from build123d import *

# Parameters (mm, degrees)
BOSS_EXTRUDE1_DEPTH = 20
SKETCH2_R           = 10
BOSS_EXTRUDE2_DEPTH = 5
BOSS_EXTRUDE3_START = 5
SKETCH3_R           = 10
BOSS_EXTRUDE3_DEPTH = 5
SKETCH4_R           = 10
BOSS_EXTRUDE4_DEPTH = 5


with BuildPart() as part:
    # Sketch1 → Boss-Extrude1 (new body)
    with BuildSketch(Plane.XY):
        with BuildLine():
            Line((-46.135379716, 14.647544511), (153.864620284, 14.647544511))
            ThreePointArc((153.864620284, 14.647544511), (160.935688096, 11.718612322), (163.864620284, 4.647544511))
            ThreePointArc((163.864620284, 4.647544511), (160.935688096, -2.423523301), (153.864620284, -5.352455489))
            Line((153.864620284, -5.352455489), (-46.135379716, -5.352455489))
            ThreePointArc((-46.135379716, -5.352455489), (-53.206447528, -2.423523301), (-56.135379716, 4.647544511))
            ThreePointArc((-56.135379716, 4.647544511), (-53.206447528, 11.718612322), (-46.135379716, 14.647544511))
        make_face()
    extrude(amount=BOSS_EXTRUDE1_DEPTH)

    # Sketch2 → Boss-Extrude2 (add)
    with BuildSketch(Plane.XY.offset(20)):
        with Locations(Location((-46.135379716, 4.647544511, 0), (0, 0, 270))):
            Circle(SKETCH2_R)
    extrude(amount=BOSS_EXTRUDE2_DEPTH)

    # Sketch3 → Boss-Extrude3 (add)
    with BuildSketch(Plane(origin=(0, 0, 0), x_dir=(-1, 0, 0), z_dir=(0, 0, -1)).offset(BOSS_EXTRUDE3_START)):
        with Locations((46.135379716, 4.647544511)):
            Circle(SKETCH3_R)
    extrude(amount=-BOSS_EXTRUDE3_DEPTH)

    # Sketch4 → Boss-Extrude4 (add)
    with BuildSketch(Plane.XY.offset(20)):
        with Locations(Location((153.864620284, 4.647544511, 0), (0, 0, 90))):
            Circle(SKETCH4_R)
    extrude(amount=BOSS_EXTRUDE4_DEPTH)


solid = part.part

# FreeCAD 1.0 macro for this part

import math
import FreeCAD as App
import Part
import Sketcher

doc = App.newDocument("Part")
params = doc.addObject("Spreadsheet::Sheet", "Params")
for row, (alias, value) in enumerate([
    ("sketch1_radius", "10 mm"),
    ("sketch1_width", "200 mm"),
    ("pad1_length", "20 mm"),
    ("sketch2_diameter", "20 mm"),
    ("pad2_length", "5 mm"),
    ("sketch3_diameter", "20 mm"),
    ("pad3_length", "5 mm"),
    ("sketch4_diameter", "20 mm"),
    ("pad4_length", "5 mm"),
], start=1):
    params.set(f"A{row}", alias)
    params.set(f"B{row}", "=" + value)
    params.setAlias(f"B{row}", alias)

body = doc.addObject("PartDesign::Body", "Body")

# Sketch on XY plane
sketch1 = doc.addObject("Sketcher::SketchObject", "Sketch")
body.addObject(sketch1)
sketch1.AttachmentSupport = (doc.XY_Plane, [""])
sketch1.MapMode = "FlatFace"
sketch1.addGeometry([
    Part.LineSegment(App.Vector(154, 15, 0), App.Vector(-46, 15, 0)),  # 0
    Part.ArcOfCircle(Part.Circle(App.Vector(-46, 5, 0), App.Vector(0, 0, 1), 10), math.radians(90), math.radians(180)),  # 1
    Part.ArcOfCircle(Part.Circle(App.Vector(-46, 5, 0), App.Vector(0, 0, 1), 10), math.radians(180), math.radians(270)),  # 2
    Part.LineSegment(App.Vector(-46, -5, 0), App.Vector(154, -5, 0)),  # 3
    Part.ArcOfCircle(Part.Circle(App.Vector(154, 5, 0), App.Vector(0, 0, 1), 10), math.radians(-90), math.radians(0)),  # 4
    Part.ArcOfCircle(Part.Circle(App.Vector(154, 5, 0), App.Vector(0, 0, 1), 10), math.radians(0), math.radians(90)),  # 5
], False)
sketch1.addConstraint([
    Sketcher.Constraint("Tangent", 0, 2, 1, 1),
    Sketcher.Constraint("Tangent", 1, 2, 2, 1),
    Sketcher.Constraint("Tangent", 2, 2, 3, 1),
    Sketcher.Constraint("Tangent", 3, 2, 4, 1),
    Sketcher.Constraint("Tangent", 4, 2, 5, 1),
    Sketcher.Constraint("Tangent", 5, 2, 0, 1),
    Sketcher.Constraint("Horizontal", 0),
    Sketcher.Constraint("Horizontal", 3),
    Sketcher.Constraint("Equal", 1, 2),
    Sketcher.Constraint("Equal", 2, 4),
    Sketcher.Constraint("Horizontal", 5, 3, 1, 2),
    Sketcher.Constraint("Horizontal", 1, 2, 4, 2),
    Sketcher.Constraint("Radius", 1, 10.0),
    Sketcher.Constraint("DistanceX", 0, 2, 0, 1, 200.0),
    Sketcher.Constraint("DistanceX", 1, 3, -1, 1, 46.13538),
    Sketcher.Constraint("DistanceY", -1, 1, 1, 3, 4.647545),
])
sketch1.setExpression("Constraints[12]", "Params.sketch1_radius")
sketch1.setExpression("Constraints[13]", "Params.sketch1_width")
pad1 = doc.addObject("PartDesign::Pad", "Pad")
body.addObject(pad1)
pad1.Profile = sketch1
pad1.setExpression("Length", "Params.pad1_length")

# Sketch on XY plane
sketch2 = doc.addObject("Sketcher::SketchObject", "Sketch001")
body.addObject(sketch2)
sketch2.AttachmentSupport = (doc.XY_Plane, [""])
sketch2.MapMode = "FlatFace"
sketch2.AttachmentOffset = App.Placement(App.Vector(0, 0, 20), App.Rotation())
sketch2.addGeometry(Part.Circle(App.Vector(-46, 5, 0), App.Vector(0, 0, 1), 10), False)
sketch2.addConstraint([
    Sketcher.Constraint("Diameter", 0, 20.0),
    Sketcher.Constraint("DistanceX", 0, 3, -1, 1, 46.13538),
    Sketcher.Constraint("DistanceY", -1, 1, 0, 3, 4.647545),
])
sketch2.setExpression("Constraints[0]", "Params.sketch2_diameter")
pad2 = doc.addObject("PartDesign::Pad", "Pad001")
body.addObject(pad2)
pad2.Profile = sketch2
pad2.setExpression("Length", "Params.pad2_length")

# Sketch on XY plane
sketch3 = doc.addObject("Sketcher::SketchObject", "Sketch002")
body.addObject(sketch3)
sketch3.AttachmentSupport = (doc.XY_Plane, [""])
sketch3.MapMode = "FlatFace"
sketch3.AttachmentOffset = App.Placement(App.Vector(0, 0, -5), App.Rotation())
sketch3.addGeometry(Part.Circle(App.Vector(-46, 5, 0), App.Vector(0, 0, 1), 10), False)
sketch3.addConstraint([
    Sketcher.Constraint("Diameter", 0, 20.0),
    Sketcher.Constraint("DistanceX", 0, 3, -1, 1, 46.13538),
    Sketcher.Constraint("DistanceY", -1, 1, 0, 3, 4.647545),
])
sketch3.setExpression("Constraints[0]", "Params.sketch3_diameter")
pad3 = doc.addObject("PartDesign::Pad", "Pad002")
body.addObject(pad3)
pad3.Profile = sketch3
pad3.setExpression("Length", "Params.pad3_length")

# Sketch on XY plane
sketch4 = doc.addObject("Sketcher::SketchObject", "Sketch003")
body.addObject(sketch4)
sketch4.AttachmentSupport = (doc.XY_Plane, [""])
sketch4.MapMode = "FlatFace"
sketch4.AttachmentOffset = App.Placement(App.Vector(0, 0, 20), App.Rotation())
sketch4.addGeometry(Part.Circle(App.Vector(154, 5, 0), App.Vector(0, 0, 1), 10), False)
sketch4.addConstraint([
    Sketcher.Constraint("Diameter", 0, 20.0),
    Sketcher.Constraint("DistanceX", -1, 1, 0, 3, 153.86462),
    Sketcher.Constraint("DistanceY", -1, 1, 0, 3, 4.647545),
])
sketch4.setExpression("Constraints[0]", "Params.sketch4_diameter")
pad4 = doc.addObject("PartDesign::Pad", "Pad003")
body.addObject(pad4)
pad4.Profile = sketch4
pad4.setExpression("Length", "Params.pad4_length")

doc.recompute()
